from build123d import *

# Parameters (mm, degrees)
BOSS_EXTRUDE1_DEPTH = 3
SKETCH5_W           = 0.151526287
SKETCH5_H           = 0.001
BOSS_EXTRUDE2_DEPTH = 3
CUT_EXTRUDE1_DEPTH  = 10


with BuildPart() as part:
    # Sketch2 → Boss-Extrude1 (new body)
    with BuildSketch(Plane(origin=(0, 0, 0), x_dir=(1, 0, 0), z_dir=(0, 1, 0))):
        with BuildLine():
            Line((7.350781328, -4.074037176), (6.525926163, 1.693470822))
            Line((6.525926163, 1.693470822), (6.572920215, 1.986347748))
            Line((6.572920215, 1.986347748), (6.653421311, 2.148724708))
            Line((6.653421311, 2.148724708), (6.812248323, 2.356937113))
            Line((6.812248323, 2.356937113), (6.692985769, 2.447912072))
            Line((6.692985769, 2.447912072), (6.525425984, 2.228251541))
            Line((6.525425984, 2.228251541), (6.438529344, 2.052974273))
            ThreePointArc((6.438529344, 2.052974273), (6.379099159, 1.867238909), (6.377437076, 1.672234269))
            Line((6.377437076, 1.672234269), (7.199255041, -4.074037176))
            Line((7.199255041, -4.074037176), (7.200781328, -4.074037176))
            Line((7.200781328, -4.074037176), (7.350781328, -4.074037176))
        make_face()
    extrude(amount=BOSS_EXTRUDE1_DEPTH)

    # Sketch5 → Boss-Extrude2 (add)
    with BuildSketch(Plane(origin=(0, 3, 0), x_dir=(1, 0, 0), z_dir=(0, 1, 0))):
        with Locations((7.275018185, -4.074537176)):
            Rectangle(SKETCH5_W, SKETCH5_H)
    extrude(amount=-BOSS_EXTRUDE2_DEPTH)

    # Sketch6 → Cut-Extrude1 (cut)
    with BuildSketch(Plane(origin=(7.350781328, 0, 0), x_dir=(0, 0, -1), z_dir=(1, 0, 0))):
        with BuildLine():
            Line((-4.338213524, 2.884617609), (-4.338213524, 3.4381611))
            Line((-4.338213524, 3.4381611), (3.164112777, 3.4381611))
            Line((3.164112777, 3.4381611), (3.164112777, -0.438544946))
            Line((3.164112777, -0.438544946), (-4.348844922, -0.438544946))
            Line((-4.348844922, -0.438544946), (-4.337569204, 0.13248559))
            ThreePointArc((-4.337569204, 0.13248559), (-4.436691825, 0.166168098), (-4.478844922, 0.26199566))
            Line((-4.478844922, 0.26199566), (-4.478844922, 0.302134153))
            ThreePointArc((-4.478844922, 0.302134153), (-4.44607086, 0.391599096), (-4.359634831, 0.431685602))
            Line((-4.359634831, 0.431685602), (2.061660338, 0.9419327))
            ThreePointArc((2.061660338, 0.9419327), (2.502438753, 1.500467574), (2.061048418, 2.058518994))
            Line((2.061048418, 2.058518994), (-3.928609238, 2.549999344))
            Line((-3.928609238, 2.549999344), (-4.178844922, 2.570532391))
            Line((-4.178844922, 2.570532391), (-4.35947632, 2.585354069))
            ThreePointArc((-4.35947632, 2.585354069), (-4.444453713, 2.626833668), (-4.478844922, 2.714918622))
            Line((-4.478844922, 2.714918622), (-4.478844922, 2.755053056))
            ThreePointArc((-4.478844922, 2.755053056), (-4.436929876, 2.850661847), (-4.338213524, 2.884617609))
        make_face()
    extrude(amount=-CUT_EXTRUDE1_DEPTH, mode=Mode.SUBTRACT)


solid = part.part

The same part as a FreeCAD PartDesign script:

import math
import FreeCAD as App
import Part
import Sketcher
from FreeCAD import Vector

doc = App.newDocument("Part")
body = doc.addObject("PartDesign::Body", "Body")

# Sketch on XZ plane
sketch1 = body.newObject("Sketcher::SketchObject", "Sketch")
sketch1.AttachmentSupport = (doc.getObject("XZ_Plane"), [""])
sketch1.MapMode = "FlatFace"
sketch1.addGeometry([
    Part.LineSegment(Vector(7.350781, 4.074037, 0), Vector(6.525926, -1.693471, 0)),  # 0
    Part.LineSegment(Vector(6.525926, -1.693471, 0), Vector(6.57292, -1.986348, 0)),  # 1
    Part.LineSegment(Vector(6.57292, -1.986348, 0), Vector(6.653421, -2.148725, 0)),  # 2
    Part.LineSegment(Vector(6.653421, -2.148725, 0), Vector(6.812248, -2.356937, 0)),  # 3
    Part.LineSegment(Vector(6.812248, -2.356937, 0), Vector(6.692986, -2.447912, 0)),  # 4
    Part.LineSegment(Vector(6.692986, -2.447912, 0), Vector(6.525426, -2.228252, 0)),  # 5
    Part.LineSegment(Vector(6.525426, -2.228252, 0), Vector(6.438529, -2.052974, 0)),  # 6
    Part.ArcOfCircle(Part.Circle(Vector(7.02089, -1.764259, 0), Vector(0, 0, 1), 0.65), math.radians(171.860888), math.radians(206.370685)),  # 7
    Part.LineSegment(Vector(6.377437, -1.672234, 0), Vector(7.199255, 4.074037, 0)),  # 8
    Part.LineSegment(Vector(7.199255, 4.074037, 0), Vector(7.350781, 4.074037, 0)),  # 9
], False)
sketch1.addConstraint([
    Sketcher.Constraint("Coincident", 0, 2, 1, 1),
    Sketcher.Constraint("Coincident", 1, 2, 2, 1),
    Sketcher.Constraint("Coincident", 2, 2, 3, 1),
    Sketcher.Constraint("Coincident", 3, 2, 4, 1),
    Sketcher.Constraint("Coincident", 4, 2, 5, 1),
    Sketcher.Constraint("Coincident", 5, 2, 6, 1),
    Sketcher.Constraint("Coincident", 6, 2, 7, 2),
    Sketcher.Constraint("Coincident", 7, 1, 8, 1),
    Sketcher.Constraint("Coincident", 8, 2, 9, 1),
    Sketcher.Constraint("Coincident", 9, 2, 0, 1),
    Sketcher.Constraint("Horizontal", 9),
    Sketcher.Constraint("Radius", 7, 0.65),
    Sketcher.Constraint("Distance", 4, 0.15),
    Sketcher.Constraint("DistanceX", 1, 2, 2, 2, 0.080501),
    Sketcher.Constraint("DistanceX", 5, 2, 0, 2, 0.0005),
    Sketcher.Constraint("Distance", 8, 5.804741),
    Sketcher.Constraint("DistanceX", 9, 1, 9, 2, 0.151526),
    Sketcher.Constraint("DistanceX", -1, 1, 7, 3, 7.02089),
    Sketcher.Constraint("DistanceY", 7, 3, -1, 1, 1.764259),
    Sketcher.Constraint("DistanceY", 0, 2, -1, 1, 1.693471),
    Sketcher.Constraint("DistanceX", -1, 1, 1, 2, 6.57292),
    Sketcher.Constraint("DistanceX", -1, 1, 3, 2, 6.812248),
    Sketcher.Constraint("DistanceY", 5, 2, -1, 1, 2.228252),
    Sketcher.Constraint("DistanceX", -1, 1, 6, 2, 6.438529),
    Sketcher.Constraint("DistanceX", -1, 1, 9, 2, 7.350781),
    Sketcher.Constraint("DistanceY", 1, 2, 7, 3, 0.222088),
    Sketcher.Constraint("DistanceY", 3, 2, 1, 2, 0.370589),
    Sketcher.Constraint("DistanceX", 0, 2, 4, 2, 0.16706),
    Sketcher.Constraint("DistanceY", 4, 2, 0, 2, 0.754441),
    Sketcher.Constraint("DistanceY", 2, 2, 6, 2, 0.09575),
    Sketcher.Constraint("DistanceX", 7, 1, 0, 2, 0.148489),
])
pad1 = body.newObject("PartDesign::Pad", "Pad")
pad1.Profile = sketch1
pad1.Length = 3
pad1.Reversed = True

# Sketch on XZ plane
sketch2 = body.newObject("Sketcher::SketchObject", "Sketch001")
sketch2.AttachmentSupport = (doc.getObject("XZ_Plane"), [""])
sketch2.MapMode = "FlatFace"
sketch2.AttachmentOffset = App.Placement(Vector(0, 0, -3), App.Rotation())
sketch2.addGeometry([
    Part.LineSegment(Vector(7.1993, 4.074, 0), Vector(7.1993, 4.075, 0)),
    Part.LineSegment(Vector(7.1993, 4.075, 0), Vector(7.3508, 4.075, 0)),
    Part.LineSegment(Vector(7.3508, 4.075, 0), Vector(7.3508, 4.074, 0)),
    Part.LineSegment(Vector(7.3508, 4.074, 0), Vector(7.1993, 4.074, 0)),
], False)
sketch2.addConstraint([
    Sketcher.Constraint("Coincident", 0, 2, 1, 1),
    Sketcher.Constraint("Coincident", 1, 2, 2, 1),
    Sketcher.Constraint("Coincident", 2, 2, 3, 1),
    Sketcher.Constraint("Coincident", 3, 2, 0, 1),
    Sketcher.Constraint("Vertical", 0),
    Sketcher.Constraint("Horizontal", 1),
    Sketcher.Constraint("Vertical", 2),
    Sketcher.Constraint("Horizontal", 3),
    Sketcher.Constraint("DistanceY", 0, 1, 0, 2, 0.001),
    Sketcher.Constraint("DistanceX", 1, 1, 1, 2, 0.151526),
    Sketcher.Constraint("DistanceX", -1, 1, 1, 2, 7.350781),
    Sketcher.Constraint("DistanceY", -1, 1, 0, 2, 4.075037),
])
pad2 = body.newObject("PartDesign::Pad", "Pad001")
pad2.Profile = sketch2
pad2.Length = 3

# Sketch on YZ plane
sketch3 = body.newObject("Sketcher::SketchObject", "Sketch002")
sketch3.AttachmentSupport = (doc.getObject("YZ_Plane"), [""])
sketch3.MapMode = "FlatFace"
sketch3.AttachmentOffset = App.Placement(Vector(0, 0, 7.350781), App.Rotation())
sketch3.addGeometry([
    Part.LineSegment(Vector(3.438, 4.338, 0), Vector(2.885, 4.338, 0)),  # 0
    Part.ArcOfCircle(Part.Circle(Vector(2.755, 4.349, 0), Vector(0, 0, 1), 0.13), math.radians(-5), math.radians(90)),  # 1
    Part.LineSegment(Vector(2.755, 4.479, 0), Vector(2.715, 4.479, 0)),  # 2
    Part.ArcOfCircle(Part.Circle(Vector(2.715, 4.349, 0), Vector(0, 0, 1), 0.13), math.radians(90), math.radians(175)),  # 3
    Part.LineSegment(Vector(2.585, 4.359, 0), Vector(2.571, 4.179, 0)),  # 4
    Part.LineSegment(Vector(2.571, 4.179, 0), Vector(2.55, 3.929, 0)),  # 5
    Part.LineSegment(Vector(2.55, 3.929, 0), Vector(2.059, -2.061, 0)),  # 6
    Part.ArcOfCircle(Part.Circle(Vector(1.5, -1.929, 0), Vector(0, 0, 1), 0.574), math.radians(-167), math.radians(-13)),  # 7
    Part.LineSegment(Vector(0.942, -2.062, 0), Vector(0.432, 4.36, 0)),  # 8
    Part.ArcOfCircle(Part.Circle(Vector(0.307, 4.354, 0), Vector(0, 0, 1), 0.124), math.radians(2), math.radians(92)),  # 9
    Part.LineSegment(Vector(0.302, 4.479, 0), Vector(0.262, 4.479, 0)),  # 10
    Part.ArcOfCircle(Part.Circle(Vector(0.262, 4.349, 0), Vector(0, 0, 1), 0.13), math.radians(90), math.radians(185)),  # 11
    Part.LineSegment(Vector(0.132, 4.338, 0), Vector(-0.439, 4.349, 0)),  # 12
    Part.LineSegment(Vector(-0.439, 4.349, 0), Vector(-0.439, -3.164, 0)),  # 13
    Part.LineSegment(Vector(-0.439, -3.164, 0), Vector(3.438, -3.164, 0)),  # 14
    Part.LineSegment(Vector(3.438, -3.164, 0), Vector(3.438, 4.338, 0)),  # 15
], False)
sketch3.addConstraint([
    Sketcher.Constraint("Coincident", 0, 2, 1, 1),
    Sketcher.Constraint("Tangent", 1, 2, 2, 1),
    Sketcher.Constraint("Tangent", 2, 2, 3, 1),
    Sketcher.Constraint("Tangent", 3, 2, 4, 1),
    Sketcher.Constraint("Coincident", 4, 2, 5, 1),
    Sketcher.Constraint("Coincident", 5, 2, 6, 1),
    Sketcher.Constraint("Coincident", 6, 2, 7, 2),
    Sketcher.Constraint("Coincident", 7, 1, 8, 1),
    Sketcher.Constraint("Coincident", 8, 2, 9, 1),
    Sketcher.Constraint("Coincident", 9, 2, 10, 1),
    Sketcher.Constraint("Tangent", 10, 2, 11, 1),
    Sketcher.Constraint("Coincident", 11, 2, 12, 1),
    Sketcher.Constraint("Coincident", 12, 2, 13, 1),
    Sketcher.Constraint("Coincident", 13, 2, 14, 1),
    Sketcher.Constraint("Coincident", 14, 2, 15, 1),
    Sketcher.Constraint("Coincident", 15, 2, 0, 1),
    Sketcher.Constraint("Horizontal", 0),
    Sketcher.Constraint("Horizontal", 2),
    Sketcher.Constraint("Horizontal", 10),
    Sketcher.Constraint("Vertical", 13),
    Sketcher.Constraint("Horizontal", 14),
    Sketcher.Constraint("Vertical", 15),
    Sketcher.Constraint("Equal", 1, 3),
    Sketcher.Constraint("Equal", 3, 11),
    Sketcher.Constraint("Parallel", 4, 5),
    Sketcher.Constraint("Parallel", 5, 6),
    Sketcher.Constraint("Horizontal", 3, 3, 11, 3),
    Sketcher.Constraint("Horizontal", 11, 3, 12, 2),
    Sketcher.Constraint("Radius", 1, 0.13),
    Sketcher.Constraint("DistanceY", 4, 2, 2, 2, 0.3),
    Sketcher.Constraint("DistanceX", -1, 1, 5, 2, 2.549999),
    Sketcher.Constraint("Radius", 9, 0.124488),
    Sketcher.Constraint("Radius", 7, 0.573866),
    Sketcher.Constraint("DistanceX", 10, 2, 10, 1, 0.040138),
    Sketcher.Constraint("DistanceX", 7, 3, 1, 3, 1.2549),
    Sketcher.Constraint("DistanceX", 3, 3, 0, 2, 0.169699),
    Sketcher.Constraint("DistanceX", 3, 2, 1, 3, 0.169699),
    Sketcher.Constraint("DistanceX", 6, 2, 3, 3, 0.6564),
    Sketcher.Constraint("DistanceX", 9, 2, 4, 2, 2.268398),
    Sketcher.Constraint("DistanceX", 11, 2, 8, 2, 0.2992),
    Sketcher.Constraint("DistanceX", 13, 2, 7, 3, 1.938698),
    Sketcher.Constraint("Distance", 12, 0.571142),
    Sketcher.Constraint("DistanceX", 0, 2, 0, 1, 0.553543),
    Sketcher.Constraint("DistanceY", 13, 2, 13, 1, 7.512958),
    Sketcher.Constraint("DistanceX", -1, 1, 3, 3, 2.714919),
    Sketcher.Constraint("DistanceY", -1, 1, 5, 2, 3.928609),
    Sketcher.Constraint("DistanceY", 6, 2, -1, 1, 2.061048),
    Sketcher.Constraint("DistanceY", 7, 1, -1, 1, 2.06166),
    Sketcher.Constraint("DistanceX", 9, 3, 1, 3, 2.447748),
])
pocket1 = body.newObject("PartDesign::Pocket", "Pocket")
pocket1.Profile = sketch3
pocket1.Length = 10

doc.recompute()
